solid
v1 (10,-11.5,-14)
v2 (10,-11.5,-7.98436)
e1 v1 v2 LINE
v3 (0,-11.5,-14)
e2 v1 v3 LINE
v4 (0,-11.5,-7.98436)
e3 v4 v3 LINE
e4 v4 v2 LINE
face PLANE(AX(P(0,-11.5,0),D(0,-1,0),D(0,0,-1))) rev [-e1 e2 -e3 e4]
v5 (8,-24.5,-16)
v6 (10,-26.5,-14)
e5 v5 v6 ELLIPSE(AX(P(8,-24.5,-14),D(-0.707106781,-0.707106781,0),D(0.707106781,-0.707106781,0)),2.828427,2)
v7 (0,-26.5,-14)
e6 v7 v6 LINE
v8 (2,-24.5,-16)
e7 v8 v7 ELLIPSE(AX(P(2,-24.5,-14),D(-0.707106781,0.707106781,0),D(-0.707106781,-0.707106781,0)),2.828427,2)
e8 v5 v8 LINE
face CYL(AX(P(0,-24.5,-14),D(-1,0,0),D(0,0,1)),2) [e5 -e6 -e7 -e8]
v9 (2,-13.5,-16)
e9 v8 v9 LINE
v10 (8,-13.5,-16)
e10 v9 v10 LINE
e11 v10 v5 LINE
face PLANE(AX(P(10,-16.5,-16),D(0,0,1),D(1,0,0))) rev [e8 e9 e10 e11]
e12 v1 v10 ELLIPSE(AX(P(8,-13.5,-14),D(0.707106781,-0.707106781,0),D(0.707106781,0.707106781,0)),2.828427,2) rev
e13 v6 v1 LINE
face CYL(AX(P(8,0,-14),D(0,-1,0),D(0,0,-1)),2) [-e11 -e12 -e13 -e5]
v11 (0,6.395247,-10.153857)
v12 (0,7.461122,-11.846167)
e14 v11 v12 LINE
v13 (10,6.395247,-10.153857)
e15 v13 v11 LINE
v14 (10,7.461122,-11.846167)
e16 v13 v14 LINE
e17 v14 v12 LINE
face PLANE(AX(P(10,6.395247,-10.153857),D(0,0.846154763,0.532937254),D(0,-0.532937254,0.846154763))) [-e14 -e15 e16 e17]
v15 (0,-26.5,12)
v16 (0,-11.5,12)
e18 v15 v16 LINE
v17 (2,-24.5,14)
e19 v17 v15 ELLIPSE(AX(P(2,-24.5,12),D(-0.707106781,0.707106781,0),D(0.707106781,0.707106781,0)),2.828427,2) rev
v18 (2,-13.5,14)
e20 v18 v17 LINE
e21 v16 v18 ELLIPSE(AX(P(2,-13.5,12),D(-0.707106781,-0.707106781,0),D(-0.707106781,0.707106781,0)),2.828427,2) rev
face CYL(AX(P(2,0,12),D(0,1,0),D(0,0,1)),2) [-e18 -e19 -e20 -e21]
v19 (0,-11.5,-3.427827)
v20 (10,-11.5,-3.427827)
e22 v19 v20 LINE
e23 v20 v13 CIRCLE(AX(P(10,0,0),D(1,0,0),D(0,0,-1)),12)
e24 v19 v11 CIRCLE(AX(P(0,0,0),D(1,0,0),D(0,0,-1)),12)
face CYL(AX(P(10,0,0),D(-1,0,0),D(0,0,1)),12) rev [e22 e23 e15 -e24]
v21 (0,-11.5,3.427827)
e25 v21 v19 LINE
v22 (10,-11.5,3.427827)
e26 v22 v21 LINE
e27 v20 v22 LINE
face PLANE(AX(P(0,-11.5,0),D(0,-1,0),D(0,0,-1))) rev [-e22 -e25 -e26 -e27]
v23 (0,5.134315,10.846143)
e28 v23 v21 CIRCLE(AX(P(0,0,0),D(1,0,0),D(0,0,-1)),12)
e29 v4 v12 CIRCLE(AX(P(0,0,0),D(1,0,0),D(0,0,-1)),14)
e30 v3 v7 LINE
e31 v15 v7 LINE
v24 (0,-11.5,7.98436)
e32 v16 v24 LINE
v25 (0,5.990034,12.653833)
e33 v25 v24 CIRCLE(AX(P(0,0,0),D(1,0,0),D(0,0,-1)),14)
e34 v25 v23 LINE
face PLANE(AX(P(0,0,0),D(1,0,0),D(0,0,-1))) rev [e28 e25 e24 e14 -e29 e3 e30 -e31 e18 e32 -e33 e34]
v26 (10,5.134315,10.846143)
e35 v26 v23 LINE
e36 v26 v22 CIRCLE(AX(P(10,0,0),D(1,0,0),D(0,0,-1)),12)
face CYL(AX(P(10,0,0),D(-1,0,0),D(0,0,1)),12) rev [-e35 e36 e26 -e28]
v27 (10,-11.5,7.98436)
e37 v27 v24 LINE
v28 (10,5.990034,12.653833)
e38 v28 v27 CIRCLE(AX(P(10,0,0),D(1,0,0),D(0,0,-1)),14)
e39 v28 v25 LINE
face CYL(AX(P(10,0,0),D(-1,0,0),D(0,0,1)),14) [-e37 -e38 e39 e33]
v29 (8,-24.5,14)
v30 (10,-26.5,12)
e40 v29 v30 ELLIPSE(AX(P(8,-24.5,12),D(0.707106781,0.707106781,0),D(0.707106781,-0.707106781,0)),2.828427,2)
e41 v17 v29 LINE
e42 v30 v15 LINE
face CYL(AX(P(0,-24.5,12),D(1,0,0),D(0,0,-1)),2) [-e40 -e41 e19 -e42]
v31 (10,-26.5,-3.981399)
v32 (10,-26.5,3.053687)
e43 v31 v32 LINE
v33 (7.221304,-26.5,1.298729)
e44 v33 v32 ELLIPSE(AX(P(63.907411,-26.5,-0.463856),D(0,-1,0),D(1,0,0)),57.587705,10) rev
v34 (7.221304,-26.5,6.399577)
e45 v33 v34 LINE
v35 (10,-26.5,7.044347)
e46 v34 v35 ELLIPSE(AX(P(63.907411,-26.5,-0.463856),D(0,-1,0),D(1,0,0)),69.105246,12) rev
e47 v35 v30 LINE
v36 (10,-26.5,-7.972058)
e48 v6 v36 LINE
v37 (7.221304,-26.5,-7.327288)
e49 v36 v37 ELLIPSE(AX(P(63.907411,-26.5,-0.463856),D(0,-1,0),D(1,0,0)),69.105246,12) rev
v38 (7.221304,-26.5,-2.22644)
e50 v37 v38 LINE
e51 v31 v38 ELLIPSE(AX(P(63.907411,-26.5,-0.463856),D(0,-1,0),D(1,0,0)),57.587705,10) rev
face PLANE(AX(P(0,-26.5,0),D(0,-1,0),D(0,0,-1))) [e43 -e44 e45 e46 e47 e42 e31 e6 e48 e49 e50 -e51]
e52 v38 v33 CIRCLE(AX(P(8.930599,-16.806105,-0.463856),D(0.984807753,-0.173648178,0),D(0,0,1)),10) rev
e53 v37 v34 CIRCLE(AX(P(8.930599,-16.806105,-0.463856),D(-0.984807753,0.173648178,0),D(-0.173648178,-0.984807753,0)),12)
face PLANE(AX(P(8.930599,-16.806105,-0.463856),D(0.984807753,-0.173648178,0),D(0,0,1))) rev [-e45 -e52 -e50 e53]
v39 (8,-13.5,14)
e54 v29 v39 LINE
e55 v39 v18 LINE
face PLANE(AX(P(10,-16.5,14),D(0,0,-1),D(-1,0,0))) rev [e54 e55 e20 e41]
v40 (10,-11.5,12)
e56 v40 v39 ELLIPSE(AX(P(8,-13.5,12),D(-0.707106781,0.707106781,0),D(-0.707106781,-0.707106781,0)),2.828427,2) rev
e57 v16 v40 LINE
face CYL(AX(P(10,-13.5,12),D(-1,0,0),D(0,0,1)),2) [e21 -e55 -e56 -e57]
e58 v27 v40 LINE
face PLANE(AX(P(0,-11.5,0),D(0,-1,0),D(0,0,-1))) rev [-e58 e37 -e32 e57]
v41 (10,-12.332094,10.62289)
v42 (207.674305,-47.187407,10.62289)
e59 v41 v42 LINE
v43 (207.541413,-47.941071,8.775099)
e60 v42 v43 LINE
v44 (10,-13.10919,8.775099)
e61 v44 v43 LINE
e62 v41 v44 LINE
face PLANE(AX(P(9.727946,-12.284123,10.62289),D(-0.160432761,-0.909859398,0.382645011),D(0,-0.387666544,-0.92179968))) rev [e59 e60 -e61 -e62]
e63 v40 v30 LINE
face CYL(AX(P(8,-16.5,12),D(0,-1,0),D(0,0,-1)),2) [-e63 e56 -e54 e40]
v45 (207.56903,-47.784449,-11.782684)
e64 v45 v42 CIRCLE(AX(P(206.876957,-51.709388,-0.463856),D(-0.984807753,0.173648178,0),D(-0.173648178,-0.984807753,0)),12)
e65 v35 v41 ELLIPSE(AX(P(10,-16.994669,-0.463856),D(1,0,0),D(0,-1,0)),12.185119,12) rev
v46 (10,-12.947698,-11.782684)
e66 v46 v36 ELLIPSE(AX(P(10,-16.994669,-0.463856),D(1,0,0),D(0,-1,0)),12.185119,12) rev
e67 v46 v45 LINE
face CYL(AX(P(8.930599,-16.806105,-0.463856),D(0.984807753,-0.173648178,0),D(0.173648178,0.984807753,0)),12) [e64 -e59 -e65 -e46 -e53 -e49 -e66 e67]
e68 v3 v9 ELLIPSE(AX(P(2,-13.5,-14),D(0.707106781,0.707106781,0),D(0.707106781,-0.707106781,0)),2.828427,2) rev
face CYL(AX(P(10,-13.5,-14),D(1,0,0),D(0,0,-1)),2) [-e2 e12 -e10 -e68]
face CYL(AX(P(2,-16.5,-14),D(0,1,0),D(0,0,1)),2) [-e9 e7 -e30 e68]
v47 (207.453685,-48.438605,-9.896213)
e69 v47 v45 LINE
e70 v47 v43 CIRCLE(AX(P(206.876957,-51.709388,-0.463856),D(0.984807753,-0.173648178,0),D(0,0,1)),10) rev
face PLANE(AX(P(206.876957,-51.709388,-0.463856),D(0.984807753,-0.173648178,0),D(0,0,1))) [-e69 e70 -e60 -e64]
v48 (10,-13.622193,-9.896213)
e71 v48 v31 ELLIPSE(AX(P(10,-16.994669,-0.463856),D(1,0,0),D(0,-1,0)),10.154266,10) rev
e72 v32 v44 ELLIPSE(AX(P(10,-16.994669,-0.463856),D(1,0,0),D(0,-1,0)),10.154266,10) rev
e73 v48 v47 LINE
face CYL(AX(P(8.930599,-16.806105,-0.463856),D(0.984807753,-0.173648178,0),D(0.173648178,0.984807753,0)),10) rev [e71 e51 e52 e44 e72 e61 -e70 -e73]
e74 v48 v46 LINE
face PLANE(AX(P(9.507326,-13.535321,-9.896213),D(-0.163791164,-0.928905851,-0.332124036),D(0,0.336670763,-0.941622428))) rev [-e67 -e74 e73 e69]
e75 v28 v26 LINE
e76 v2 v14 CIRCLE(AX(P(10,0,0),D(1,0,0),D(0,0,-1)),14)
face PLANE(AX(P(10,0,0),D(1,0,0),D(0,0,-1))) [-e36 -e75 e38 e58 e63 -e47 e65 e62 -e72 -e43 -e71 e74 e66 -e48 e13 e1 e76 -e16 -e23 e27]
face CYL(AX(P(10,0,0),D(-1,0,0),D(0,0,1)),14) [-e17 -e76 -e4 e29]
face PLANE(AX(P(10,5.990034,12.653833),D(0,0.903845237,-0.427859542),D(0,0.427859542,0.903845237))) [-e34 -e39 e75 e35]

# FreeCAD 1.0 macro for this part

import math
import FreeCAD as App
import Part
import Sketcher

V = App.Vector
Q = App.Units.Quantity


def edges_at(feature, points):
    """Names of the edges that pass closest to the given points."""
    edges = feature.Shape.Edges
    near = lambda p: min(range(len(edges)), key=lambda i: edges[i].distToShape(Part.Vertex(*p))[0])
    return sorted({f"Edge{near(p) + 1}" for p in points})

doc = App.newDocument("Part")
body = doc.addObject("PartDesign::Body", "Body")

# Sketch on YZ plane
sketch1 = body.newObject("Sketcher::SketchObject", "Sketch")
sketch1.AttachmentSupport = (doc.getObject("YZ_Plane"), [""])
sketch1.MapMode = "FlatFace"
sketch1.addGeometry(Part.ArcOfCircle(Part.Circle(V(0, 0, 0), V(0, 0, 1), 12), math.radians(65), math.radians(302)), False)
sketch1.addGeometry(Part.LineSegment(V(5.1, 10.8, 0), V(6, 12.7, 0)), False)
sketch1.addGeometry(Part.ArcOfCircle(Part.Circle(V(0, 0, 0), V(0, 0, 1), 14), math.radians(65), math.radians(302)), False)
sketch1.addGeometry(Part.LineSegment(V(7.5, -11.8, 0), V(6.4, -10.2, 0)), False)
sketch1.addConstraint(Sketcher.Constraint("Coincident", 0, 1, 1, 1))
sketch1.addConstraint(Sketcher.Constraint("Coincident", 1, 2, 2, 1))
sketch1.addConstraint(Sketcher.Constraint("Coincident", 2, 2, 3, 1))
sketch1.addConstraint(Sketcher.Constraint("Coincident", 3, 2, 0, 2))
sketch1.addConstraint(Sketcher.Constraint("Coincident", 0, 3, -1, 1))
sketch1.addConstraint(Sketcher.Constraint("Coincident", 2, 3, -1, 1))
sketch1.addConstraint(Sketcher.Constraint("Radius", 0, Q("12 mm")))
sketch1.addConstraint(Sketcher.Constraint("Radius", 2, Q("14 mm")))
sketch1.addConstraint(Sketcher.Constraint("DistanceY", 3, 2, 0, 1, Q("21 mm")))
sketch1.addConstraint(Sketcher.Constraint("DistanceY", 2, 2, 1, 2, Q("24.5 mm")))
sketch1.addConstraint(Sketcher.Constraint("DistanceX", -1, 1, 2, 2, Q("7.461122 mm")))
sketch1.addConstraint(Sketcher.Constraint("DistanceX", 0, 1, 1, 2, Q("0.855719 mm")))
pad1 = body.newObject("PartDesign::Pad", "Pad")
pad1.Profile = sketch1
pad1.Length = 10

# Sketch on XZ plane
sketch2 = body.newObject("Sketcher::SketchObject", "Sketch001")
sketch2.AttachmentSupport = (doc.getObject("XZ_Plane"), [""])
sketch2.MapMode = "FlatFace"
sketch2.AttachmentOffset = App.Placement(V(0, 0, 14), App.Rotation())
sketch2.addGeometry(Part.LineSegment(V(10, -16, 0), V(10, 14, 0)), False)
sketch2.addGeometry(Part.LineSegment(V(10, 14, 0), V(0, 14, 0)), False)
sketch2.addGeometry(Part.LineSegment(V(0, 14, 0), V(0, -16, 0)), False)
sketch2.addGeometry(Part.LineSegment(V(0, -16, 0), V(10, -16, 0)), False)
sketch2.addConstraint(Sketcher.Constraint("Coincident", 0, 2, 1, 1))
sketch2.addConstraint(Sketcher.Constraint("Coincident", 1, 2, 2, 1))
sketch2.addConstraint(Sketcher.Constraint("Coincident", 2, 2, 3, 1))
sketch2.addConstraint(Sketcher.Constraint("Coincident", 3, 2, 0, 1))
sketch2.addConstraint(Sketcher.Constraint("Vertical", 0))
sketch2.addConstraint(Sketcher.Constraint("Horizontal", 1))
sketch2.addConstraint(Sketcher.Constraint("Vertical", 2))
sketch2.addConstraint(Sketcher.Constraint("Horizontal", 3))
sketch2.addConstraint(Sketcher.Constraint("PointOnObject", 1, 2, -2))
sketch2.addConstraint(Sketcher.Constraint("DistanceX", 1, 2, 1, 1, Q("10 mm")))
sketch2.addConstraint(Sketcher.Constraint("DistanceY", 0, 1, 0, 2, Q("30 mm")))
sketch2.addConstraint(Sketcher.Constraint("DistanceY", -1, 1, 0, 2, Q("14 mm")))
pad2 = body.newObject("PartDesign::Pad", "Pad001")
pad2.Profile = sketch2
pad2.Length = 5
pad2.Midplane = True
body2 = doc.addObject("PartDesign::Body", "Body001")

# Sketch on an angled plane
sketch3 = body2.newObject("Sketcher::SketchObject", "Sketch002")
sketch3.Placement = App.Placement(V(12.520129, -2.207637, 0), App.Rotation(V(0, 0, 1), V(-0.173648178, -0.984807753, 0), V(0.984807753, -0.173648178, 0), "ZXY"))
sketch3.addGeometry(Part.ArcOfCircle(Part.Circle(V(-0.5, 15, 0), V(0, 0, 1), 12), math.radians(-22), math.radians(199)), False)
sketch3.addGeometry(Part.LineSegment(V(-11.8, 11, 0), V(-9.9, 11.7, 0)), False)
sketch3.addGeometry(Part.ArcOfCircle(Part.Circle(V(-0.5, 15, 0), V(0, 0, 1), 10), math.radians(-22), math.radians(199)), False)
sketch3.addGeometry(Part.LineSegment(V(8.8, 11.2, 0), V(10.6, 10.4, 0)), False)
sketch3.addConstraint(Sketcher.Constraint("Coincident", 0, 2, 1, 1))
sketch3.addConstraint(Sketcher.Constraint("Coincident", 1, 2, 2, 2))
sketch3.addConstraint(Sketcher.Constraint("Coincident", 2, 1, 3, 1))
sketch3.addConstraint(Sketcher.Constraint("Coincident", 3, 2, 0, 1))
sketch3.addConstraint(Sketcher.Constraint("Coincident", 2, 3, 0, 3))
sketch3.addConstraint(Sketcher.Constraint("Radius", 0, Q("12 mm")))
sketch3.addConstraint(Sketcher.Constraint("Radius", 2, Q("10 mm")))
sketch3.addConstraint(Sketcher.Constraint("DistanceY", -1, 1, 0, 3, Q("15 mm")))
sketch3.addConstraint(Sketcher.Constraint("DistanceX", -1, 1, 2, 1, Q("8.775099 mm")))
sketch3.addConstraint(Sketcher.Constraint("DistanceY", 3, 2, 1, 2, Q("1.2705 mm")))
sketch3.addConstraint(Sketcher.Constraint("DistanceY", -1, 1, 0, 2, Q("11.014512 mm")))
sketch3.addConstraint(Sketcher.Constraint("DistanceY", -1, 1, 1, 2, Q("11.67876 mm")))
sketch3.addConstraint(Sketcher.Constraint("DistanceY", -1, 1, 2, 1, Q("11.17355 mm")))
pad3 = body2.newObject("PartDesign::Pad", "Pad002")
pad3.Profile = sketch3
pad3.Type = "TwoLengths"
pad3.Length = 200
pad3.Length2 = 1
doc.recompute()

boolean = body.newObject("PartDesign::Boolean", "Boolean")
boolean.Type = "Fuse"
boolean.addObjects([body2])

# Sketch on XZ plane
sketch4 = body.newObject("Sketcher::SketchObject", "Sketch003")
sketch4.AttachmentSupport = (doc.getObject("XZ_Plane"), [""])
sketch4.MapMode = "FlatFace"
sketch4.AttachmentOffset = App.Placement(V(0, 0, 16.5), App.Rotation())
sketch4.addGeometry(Part.LineSegment(V(0, 14, 0), V(0, -16, 0)), False)
sketch4.addGeometry(Part.LineSegment(V(0, -16, 0), V(10, -16, 0)), False)
sketch4.addGeometry(Part.LineSegment(V(10, -16, 0), V(10, 14, 0)), False)
sketch4.addGeometry(Part.LineSegment(V(10, 14, 0), V(0, 14, 0)), False)
sketch4.addConstraint(Sketcher.Constraint("Coincident", 0, 2, 1, 1))
sketch4.addConstraint(Sketcher.Constraint("Coincident", 1, 2, 2, 1))
sketch4.addConstraint(Sketcher.Constraint("Coincident", 2, 2, 3, 1))
sketch4.addConstraint(Sketcher.Constraint("Coincident", 3, 2, 0, 1))
sketch4.addConstraint(Sketcher.Constraint("Vertical", 0))
sketch4.addConstraint(Sketcher.Constraint("Horizontal", 1))
sketch4.addConstraint(Sketcher.Constraint("Vertical", 2))
sketch4.addConstraint(Sketcher.Constraint("Horizontal", 3))
sketch4.addConstraint(Sketcher.Constraint("PointOnObject", 0, 2, -2))
sketch4.addConstraint(Sketcher.Constraint("DistanceX", 1, 1, 1, 2, Q("10 mm")))
sketch4.addConstraint(Sketcher.Constraint("DistanceY", 0, 2, 0, 1, Q("30 mm")))
sketch4.addConstraint(Sketcher.Constraint("DistanceY", 0, 2, -1, 1, Q("16 mm")))
pad4 = body.newObject("PartDesign::Pad", "Pad003")
pad4.Profile = sketch4
pad4.Length = 10
doc.recompute()

fillet = body.newObject("PartDesign::Fillet", "Fillet")
fillet.Base = (pad4, edges_at(pad4, [
    (10, -19, -16),
    (5, -11.5, 14),
    (10, -19, 14),
    (0, -19, 14),
    (5, -11.5, -16),
    (0, -19, -16),
    (5, -26.5, -16),
    (5, -26.5, 14),
]))
fillet.Radius = 2

doc.recompute()
